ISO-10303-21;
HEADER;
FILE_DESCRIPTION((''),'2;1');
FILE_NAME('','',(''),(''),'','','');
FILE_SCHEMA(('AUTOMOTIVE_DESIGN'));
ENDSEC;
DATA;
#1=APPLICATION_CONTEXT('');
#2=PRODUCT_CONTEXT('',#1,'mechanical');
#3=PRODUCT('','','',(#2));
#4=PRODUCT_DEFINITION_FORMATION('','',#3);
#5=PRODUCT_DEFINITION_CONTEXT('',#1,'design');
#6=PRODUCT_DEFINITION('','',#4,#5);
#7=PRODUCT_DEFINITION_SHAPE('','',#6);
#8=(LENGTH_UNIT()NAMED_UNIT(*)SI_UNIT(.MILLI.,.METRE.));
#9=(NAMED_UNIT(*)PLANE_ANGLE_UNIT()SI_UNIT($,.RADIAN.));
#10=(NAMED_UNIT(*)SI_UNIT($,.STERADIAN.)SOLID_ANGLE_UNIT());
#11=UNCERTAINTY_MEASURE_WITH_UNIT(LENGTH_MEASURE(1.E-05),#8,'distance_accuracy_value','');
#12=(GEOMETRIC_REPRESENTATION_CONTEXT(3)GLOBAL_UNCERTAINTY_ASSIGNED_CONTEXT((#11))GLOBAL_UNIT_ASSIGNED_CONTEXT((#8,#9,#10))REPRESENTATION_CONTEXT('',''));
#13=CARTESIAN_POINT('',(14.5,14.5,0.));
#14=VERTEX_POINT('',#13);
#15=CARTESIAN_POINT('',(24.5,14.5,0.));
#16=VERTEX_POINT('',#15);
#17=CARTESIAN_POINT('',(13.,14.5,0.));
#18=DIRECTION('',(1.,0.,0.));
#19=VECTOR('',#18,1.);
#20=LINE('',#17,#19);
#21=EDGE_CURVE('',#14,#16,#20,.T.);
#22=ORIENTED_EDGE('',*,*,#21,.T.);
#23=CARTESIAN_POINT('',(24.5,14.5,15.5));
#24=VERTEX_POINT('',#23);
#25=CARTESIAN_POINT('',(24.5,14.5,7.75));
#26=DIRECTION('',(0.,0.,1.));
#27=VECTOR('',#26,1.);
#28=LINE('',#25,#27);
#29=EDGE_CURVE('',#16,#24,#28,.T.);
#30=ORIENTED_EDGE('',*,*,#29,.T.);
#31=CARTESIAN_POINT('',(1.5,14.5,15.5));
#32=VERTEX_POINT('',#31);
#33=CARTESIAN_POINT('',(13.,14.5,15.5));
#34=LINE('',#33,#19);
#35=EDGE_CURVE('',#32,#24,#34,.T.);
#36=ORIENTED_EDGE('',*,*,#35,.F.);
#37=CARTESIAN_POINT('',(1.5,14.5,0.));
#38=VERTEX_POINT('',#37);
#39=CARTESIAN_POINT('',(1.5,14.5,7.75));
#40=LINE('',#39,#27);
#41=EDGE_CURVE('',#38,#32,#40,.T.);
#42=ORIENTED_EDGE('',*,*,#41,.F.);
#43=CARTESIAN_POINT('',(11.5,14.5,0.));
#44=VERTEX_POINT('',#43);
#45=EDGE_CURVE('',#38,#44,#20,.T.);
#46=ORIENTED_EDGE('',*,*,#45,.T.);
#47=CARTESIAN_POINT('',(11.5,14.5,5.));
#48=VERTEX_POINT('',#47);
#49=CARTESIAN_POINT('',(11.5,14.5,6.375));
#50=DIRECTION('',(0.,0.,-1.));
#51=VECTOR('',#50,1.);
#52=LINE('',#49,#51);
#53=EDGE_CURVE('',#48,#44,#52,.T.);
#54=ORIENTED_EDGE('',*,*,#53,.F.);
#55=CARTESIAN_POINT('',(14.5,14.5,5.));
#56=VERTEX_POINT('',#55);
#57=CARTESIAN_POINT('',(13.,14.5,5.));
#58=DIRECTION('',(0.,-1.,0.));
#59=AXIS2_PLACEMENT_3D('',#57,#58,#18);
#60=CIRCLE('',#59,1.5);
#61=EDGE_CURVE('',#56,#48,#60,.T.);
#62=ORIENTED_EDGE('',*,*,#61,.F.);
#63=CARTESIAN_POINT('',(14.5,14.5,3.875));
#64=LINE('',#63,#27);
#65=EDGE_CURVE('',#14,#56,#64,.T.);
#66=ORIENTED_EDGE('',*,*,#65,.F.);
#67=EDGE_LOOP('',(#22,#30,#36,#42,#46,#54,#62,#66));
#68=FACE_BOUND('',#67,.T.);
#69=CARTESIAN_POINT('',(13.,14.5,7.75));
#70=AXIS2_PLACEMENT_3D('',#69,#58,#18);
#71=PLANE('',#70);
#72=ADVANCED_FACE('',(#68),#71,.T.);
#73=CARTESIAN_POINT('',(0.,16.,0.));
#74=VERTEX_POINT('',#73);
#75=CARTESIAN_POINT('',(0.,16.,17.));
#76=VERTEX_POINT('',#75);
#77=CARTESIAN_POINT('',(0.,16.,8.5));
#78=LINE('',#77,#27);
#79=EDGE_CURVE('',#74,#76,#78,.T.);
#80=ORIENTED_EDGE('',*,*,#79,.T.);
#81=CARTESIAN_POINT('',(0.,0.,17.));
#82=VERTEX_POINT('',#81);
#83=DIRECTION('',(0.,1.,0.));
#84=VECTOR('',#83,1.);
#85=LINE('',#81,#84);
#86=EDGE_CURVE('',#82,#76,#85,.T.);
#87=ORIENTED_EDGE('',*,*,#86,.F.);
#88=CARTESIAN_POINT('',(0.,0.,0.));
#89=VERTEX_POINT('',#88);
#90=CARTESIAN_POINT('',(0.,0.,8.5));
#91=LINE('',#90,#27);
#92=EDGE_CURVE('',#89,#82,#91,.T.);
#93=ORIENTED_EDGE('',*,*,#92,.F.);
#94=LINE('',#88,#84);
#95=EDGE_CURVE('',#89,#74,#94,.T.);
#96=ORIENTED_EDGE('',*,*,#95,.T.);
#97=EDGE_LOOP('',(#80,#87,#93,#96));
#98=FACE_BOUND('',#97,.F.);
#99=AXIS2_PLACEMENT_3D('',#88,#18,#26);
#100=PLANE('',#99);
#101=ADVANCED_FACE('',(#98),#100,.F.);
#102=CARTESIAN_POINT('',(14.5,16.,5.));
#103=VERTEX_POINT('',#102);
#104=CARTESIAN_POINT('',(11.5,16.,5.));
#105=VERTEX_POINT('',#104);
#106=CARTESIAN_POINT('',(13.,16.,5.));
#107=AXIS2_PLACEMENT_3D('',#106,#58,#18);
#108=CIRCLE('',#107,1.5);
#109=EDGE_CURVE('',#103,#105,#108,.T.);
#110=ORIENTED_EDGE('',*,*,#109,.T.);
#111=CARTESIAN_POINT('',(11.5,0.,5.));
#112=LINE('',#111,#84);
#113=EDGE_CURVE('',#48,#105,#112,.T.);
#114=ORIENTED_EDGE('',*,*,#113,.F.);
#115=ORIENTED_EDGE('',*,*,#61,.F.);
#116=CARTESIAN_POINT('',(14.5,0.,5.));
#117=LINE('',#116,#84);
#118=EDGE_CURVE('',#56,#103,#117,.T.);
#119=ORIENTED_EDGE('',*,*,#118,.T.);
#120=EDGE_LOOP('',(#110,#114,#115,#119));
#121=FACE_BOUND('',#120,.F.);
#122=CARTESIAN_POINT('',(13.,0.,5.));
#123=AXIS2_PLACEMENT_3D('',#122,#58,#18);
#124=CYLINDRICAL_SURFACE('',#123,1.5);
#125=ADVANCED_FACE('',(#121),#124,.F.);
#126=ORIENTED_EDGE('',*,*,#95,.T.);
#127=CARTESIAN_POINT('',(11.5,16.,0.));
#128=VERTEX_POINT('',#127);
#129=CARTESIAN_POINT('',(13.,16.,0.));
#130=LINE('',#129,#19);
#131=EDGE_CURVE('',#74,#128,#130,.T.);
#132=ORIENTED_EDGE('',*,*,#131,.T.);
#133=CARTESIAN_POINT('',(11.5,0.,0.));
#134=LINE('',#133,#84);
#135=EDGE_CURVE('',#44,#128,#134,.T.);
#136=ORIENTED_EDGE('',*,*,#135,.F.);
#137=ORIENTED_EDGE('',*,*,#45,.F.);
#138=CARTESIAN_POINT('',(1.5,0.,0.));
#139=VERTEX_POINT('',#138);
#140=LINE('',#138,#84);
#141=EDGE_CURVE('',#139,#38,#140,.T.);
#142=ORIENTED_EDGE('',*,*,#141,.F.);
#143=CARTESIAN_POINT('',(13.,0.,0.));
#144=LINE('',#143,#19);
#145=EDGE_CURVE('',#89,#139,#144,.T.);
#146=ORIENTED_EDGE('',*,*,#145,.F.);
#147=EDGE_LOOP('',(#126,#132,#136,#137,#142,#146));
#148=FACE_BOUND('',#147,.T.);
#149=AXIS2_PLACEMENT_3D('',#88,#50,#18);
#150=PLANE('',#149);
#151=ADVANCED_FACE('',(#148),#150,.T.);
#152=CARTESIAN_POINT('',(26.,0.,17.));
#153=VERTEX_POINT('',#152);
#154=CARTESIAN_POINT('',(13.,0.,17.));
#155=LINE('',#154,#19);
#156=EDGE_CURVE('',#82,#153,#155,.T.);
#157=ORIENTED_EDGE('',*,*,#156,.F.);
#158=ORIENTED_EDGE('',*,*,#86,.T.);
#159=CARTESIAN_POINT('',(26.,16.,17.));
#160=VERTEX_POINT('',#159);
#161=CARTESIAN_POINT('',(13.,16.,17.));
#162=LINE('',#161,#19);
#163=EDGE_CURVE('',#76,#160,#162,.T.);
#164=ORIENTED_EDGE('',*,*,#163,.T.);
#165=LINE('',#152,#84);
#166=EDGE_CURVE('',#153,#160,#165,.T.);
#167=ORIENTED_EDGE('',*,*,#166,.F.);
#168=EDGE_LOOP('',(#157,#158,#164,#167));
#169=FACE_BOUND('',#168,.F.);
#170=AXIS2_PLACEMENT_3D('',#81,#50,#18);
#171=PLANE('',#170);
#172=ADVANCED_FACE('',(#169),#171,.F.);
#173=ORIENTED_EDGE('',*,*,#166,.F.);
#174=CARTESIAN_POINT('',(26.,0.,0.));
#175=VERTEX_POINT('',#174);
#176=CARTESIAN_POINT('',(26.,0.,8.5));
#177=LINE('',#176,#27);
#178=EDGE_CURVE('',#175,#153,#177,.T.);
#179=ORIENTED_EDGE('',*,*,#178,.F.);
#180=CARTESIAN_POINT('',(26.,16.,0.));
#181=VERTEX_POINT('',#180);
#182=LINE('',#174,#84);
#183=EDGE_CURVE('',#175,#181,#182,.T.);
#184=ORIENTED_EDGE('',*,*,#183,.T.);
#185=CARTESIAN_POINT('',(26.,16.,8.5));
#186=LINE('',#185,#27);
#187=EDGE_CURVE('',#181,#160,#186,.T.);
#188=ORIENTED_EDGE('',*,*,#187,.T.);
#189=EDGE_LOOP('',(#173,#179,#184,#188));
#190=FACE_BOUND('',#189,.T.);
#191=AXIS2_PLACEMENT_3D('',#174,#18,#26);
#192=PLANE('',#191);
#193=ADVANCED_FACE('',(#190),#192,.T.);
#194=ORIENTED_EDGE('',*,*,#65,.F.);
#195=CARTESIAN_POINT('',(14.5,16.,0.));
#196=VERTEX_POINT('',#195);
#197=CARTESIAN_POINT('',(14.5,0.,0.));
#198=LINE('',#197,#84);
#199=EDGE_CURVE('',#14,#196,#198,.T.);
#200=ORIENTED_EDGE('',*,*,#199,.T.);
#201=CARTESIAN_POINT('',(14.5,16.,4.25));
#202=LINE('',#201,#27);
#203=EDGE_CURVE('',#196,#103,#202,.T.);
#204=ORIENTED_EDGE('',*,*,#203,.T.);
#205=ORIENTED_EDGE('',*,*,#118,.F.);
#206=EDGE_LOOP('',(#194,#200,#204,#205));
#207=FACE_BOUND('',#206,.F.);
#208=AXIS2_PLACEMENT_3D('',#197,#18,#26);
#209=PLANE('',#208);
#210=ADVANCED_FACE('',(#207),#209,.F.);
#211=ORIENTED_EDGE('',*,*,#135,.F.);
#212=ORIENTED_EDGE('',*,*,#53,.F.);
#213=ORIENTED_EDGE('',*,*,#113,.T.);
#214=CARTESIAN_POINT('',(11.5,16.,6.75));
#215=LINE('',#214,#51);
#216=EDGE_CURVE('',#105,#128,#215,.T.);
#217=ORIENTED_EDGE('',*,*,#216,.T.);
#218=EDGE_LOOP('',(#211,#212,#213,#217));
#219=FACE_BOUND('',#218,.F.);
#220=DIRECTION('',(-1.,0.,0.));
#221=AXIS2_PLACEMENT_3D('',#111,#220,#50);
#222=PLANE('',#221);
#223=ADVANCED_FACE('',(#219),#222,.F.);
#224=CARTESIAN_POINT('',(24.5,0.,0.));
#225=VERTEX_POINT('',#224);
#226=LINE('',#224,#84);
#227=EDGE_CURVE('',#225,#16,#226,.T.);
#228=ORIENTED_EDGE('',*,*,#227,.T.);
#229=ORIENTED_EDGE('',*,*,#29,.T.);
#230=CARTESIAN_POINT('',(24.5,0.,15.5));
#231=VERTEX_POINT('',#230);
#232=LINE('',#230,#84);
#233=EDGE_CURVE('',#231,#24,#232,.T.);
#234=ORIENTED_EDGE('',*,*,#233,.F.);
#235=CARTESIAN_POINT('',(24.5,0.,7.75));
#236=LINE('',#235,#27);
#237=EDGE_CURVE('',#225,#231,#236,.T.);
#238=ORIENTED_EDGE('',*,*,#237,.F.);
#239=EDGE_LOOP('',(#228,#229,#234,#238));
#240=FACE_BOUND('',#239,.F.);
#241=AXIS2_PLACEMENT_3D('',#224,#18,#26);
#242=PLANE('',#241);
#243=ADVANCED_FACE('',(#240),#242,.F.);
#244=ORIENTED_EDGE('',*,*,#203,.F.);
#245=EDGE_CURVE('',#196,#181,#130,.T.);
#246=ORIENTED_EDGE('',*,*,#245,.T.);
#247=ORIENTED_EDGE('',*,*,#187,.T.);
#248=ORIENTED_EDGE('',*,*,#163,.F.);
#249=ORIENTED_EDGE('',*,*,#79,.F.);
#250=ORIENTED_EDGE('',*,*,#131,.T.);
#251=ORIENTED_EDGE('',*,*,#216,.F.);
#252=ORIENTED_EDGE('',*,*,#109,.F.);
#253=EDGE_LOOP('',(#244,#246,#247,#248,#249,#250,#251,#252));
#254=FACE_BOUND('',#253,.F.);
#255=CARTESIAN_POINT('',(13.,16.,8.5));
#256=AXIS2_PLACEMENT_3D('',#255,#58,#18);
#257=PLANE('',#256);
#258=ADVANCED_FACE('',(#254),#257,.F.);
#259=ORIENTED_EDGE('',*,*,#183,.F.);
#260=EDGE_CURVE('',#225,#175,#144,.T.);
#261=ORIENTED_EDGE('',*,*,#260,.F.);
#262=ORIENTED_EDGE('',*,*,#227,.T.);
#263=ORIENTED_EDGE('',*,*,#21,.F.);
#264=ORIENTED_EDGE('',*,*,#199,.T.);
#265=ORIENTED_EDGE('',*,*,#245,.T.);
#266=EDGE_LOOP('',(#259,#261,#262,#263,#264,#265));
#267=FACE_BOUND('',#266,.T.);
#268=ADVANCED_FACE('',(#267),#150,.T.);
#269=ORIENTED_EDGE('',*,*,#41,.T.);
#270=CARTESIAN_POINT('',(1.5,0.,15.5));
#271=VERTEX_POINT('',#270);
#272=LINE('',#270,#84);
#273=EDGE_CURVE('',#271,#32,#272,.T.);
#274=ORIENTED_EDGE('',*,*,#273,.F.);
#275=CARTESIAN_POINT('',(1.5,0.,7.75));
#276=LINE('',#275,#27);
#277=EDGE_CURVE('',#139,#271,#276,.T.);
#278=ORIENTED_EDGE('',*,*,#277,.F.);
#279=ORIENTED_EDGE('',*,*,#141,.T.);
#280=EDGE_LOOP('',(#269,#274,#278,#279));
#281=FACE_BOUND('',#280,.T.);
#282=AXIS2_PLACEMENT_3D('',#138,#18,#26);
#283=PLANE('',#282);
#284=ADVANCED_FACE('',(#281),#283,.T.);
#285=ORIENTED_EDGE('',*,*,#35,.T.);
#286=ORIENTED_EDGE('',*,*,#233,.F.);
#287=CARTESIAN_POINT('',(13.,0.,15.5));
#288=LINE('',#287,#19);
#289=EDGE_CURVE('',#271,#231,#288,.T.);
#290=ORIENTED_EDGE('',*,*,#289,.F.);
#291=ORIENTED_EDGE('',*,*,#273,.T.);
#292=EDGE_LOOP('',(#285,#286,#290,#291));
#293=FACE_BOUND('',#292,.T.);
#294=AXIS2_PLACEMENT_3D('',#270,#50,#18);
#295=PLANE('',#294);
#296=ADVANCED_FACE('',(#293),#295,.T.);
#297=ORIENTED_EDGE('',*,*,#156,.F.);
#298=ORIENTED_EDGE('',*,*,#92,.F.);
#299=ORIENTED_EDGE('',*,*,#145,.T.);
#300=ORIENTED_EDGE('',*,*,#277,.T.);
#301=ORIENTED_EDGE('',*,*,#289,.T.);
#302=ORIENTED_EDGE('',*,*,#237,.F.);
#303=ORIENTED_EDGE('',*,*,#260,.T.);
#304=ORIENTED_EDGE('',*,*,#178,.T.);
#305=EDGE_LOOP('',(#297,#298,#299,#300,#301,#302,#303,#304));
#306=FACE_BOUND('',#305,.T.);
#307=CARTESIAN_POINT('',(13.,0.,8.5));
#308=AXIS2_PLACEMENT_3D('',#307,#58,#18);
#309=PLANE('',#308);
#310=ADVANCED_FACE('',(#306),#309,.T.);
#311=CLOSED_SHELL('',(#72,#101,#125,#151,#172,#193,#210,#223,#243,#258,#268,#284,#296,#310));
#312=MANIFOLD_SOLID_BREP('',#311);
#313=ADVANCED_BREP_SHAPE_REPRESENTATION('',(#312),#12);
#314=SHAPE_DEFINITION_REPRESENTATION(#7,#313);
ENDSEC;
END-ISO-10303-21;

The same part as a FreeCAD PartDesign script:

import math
import FreeCAD as App
import Part
import Sketcher


def add_polygon(sketch, points):
    """Adds a closed chain of lines whose ends are joined by coincident constraints."""
    first, n = sketch.GeometryCount, len(points)
    for a, b in zip(points, points[1:] + points[:1]):
        sketch.addGeometry(Part.LineSegment(App.Vector(*a, 0), App.Vector(*b, 0)), False)
    for i in range(n):
        sketch.addConstraint(Sketcher.Constraint("Coincident", first + i, 2, first + (i + 1) % n, 1))

doc = App.newDocument("Part")
params = doc.addObject("Spreadsheet::Sheet", "Params")
for row, (alias, value) in enumerate([
    ("sketch1_width", "26 mm"),
    ("sketch1_height", "17 mm"),
    ("pad1_length", "16 mm"),
    ("sketch2_width", "23 mm"),
    ("sketch2_height", "15.5 mm"),
    ("pocket1_length", "14.5 mm"),
    ("sketch3_radius", "1.5 mm"),
    ("sketch3_height", "5 mm"),
    ("pocket2_length", "25 mm"),
], start=1):
    params.set(f"A{row}", alias)
    params.set(f"B{row}", "=" + value)
    params.setAlias(f"B{row}", alias)

body = doc.addObject("PartDesign::Body", "Body")

# Sketch on XZ plane
sketch1 = body.newObject("Sketcher::SketchObject", "Sketch")
sketch1.AttachmentSupport = (doc.getObject("XZ_Plane"), [""])
sketch1.MapMode = "FlatFace"
add_polygon(sketch1, [(0, 17), (0, 0), (26, 0), (26, 17)])  # lines 0-3
sketch1.addConstraint(Sketcher.Constraint("Vertical", 0))
sketch1.addConstraint(Sketcher.Constraint("Horizontal", 1))
sketch1.addConstraint(Sketcher.Constraint("Vertical", 2))
sketch1.addConstraint(Sketcher.Constraint("Horizontal", 3))
sketch1.addConstraint(Sketcher.Constraint("Coincident", 0, 2, -1, 1))
sketch1.addConstraint(Sketcher.Constraint("DistanceX", 1, 1, 1, 2, 26.0))
sketch1.addConstraint(Sketcher.Constraint("DistanceY", 0, 2, 0, 1, 17.0))
sketch1.setExpression("Constraints[9]", "Params.sketch1_width")
sketch1.setExpression("Constraints[10]", "Params.sketch1_height")
pad1 = body.newObject("PartDesign::Pad", "Pad")
pad1.Profile = sketch1
pad1.setExpression("Length", "Params.pad1_length")
pad1.Reversed = True

# Sketch on XZ plane
sketch2 = body.newObject("Sketcher::SketchObject", "Sketch001")
sketch2.AttachmentSupport = (doc.getObject("XZ_Plane"), [""])
sketch2.MapMode = "FlatFace"
add_polygon(sketch2, [(2, 16), (2, 0), (24, 0), (24, 16)])  # lines 0-3
sketch2.addConstraint(Sketcher.Constraint("Vertical", 0))
sketch2.addConstraint(Sketcher.Constraint("Horizontal", 1))
sketch2.addConstraint(Sketcher.Constraint("Vertical", 2))
sketch2.addConstraint(Sketcher.Constraint("Horizontal", 3))
sketch2.addConstraint(Sketcher.Constraint("PointOnObject", 0, 2, -1))
sketch2.addConstraint(Sketcher.Constraint("DistanceX", 1, 1, 1, 2, 23.0))
sketch2.addConstraint(Sketcher.Constraint("DistanceY", 0, 2, 0, 1, 15.5))
sketch2.addConstraint(Sketcher.Constraint("DistanceX", -1, 1, 0, 2, 1.5))
sketch2.setExpression("Constraints[9]", "Params.sketch2_width")
sketch2.setExpression("Constraints[10]", "Params.sketch2_height")
pocket1 = body.newObject("PartDesign::Pocket", "Pocket")
pocket1.Profile = sketch2
pocket1.setExpression("Length", "Params.pocket1_length")

# Sketch on XZ plane
sketch3 = body.newObject("Sketcher::SketchObject", "Sketch002")
sketch3.AttachmentSupport = (doc.getObject("XZ_Plane"), [""])
sketch3.MapMode = "FlatFace"
sketch3.addGeometry(Part.LineSegment(App.Vector(14.5, 0, 0), App.Vector(14.5, 5, 0)), False)
sketch3.addGeometry(Part.ArcOfCircle(Part.Circle(App.Vector(13, 5, 0), App.Vector(0, 0, 1), 1.5), math.radians(0), math.radians(180)), False)
sketch3.addGeometry(Part.LineSegment(App.Vector(11.5, 5, 0), App.Vector(11.5, 0, 0)), False)
sketch3.addGeometry(Part.LineSegment(App.Vector(11.5, 0, 0), App.Vector(14.5, 0, 0)), False)
sketch3.addConstraint(Sketcher.Constraint("Tangent", 0, 2, 1, 1))
sketch3.addConstraint(Sketcher.Constraint("Tangent", 1, 2, 2, 1))
sketch3.addConstraint(Sketcher.Constraint("Coincident", 2, 2, 3, 1))
sketch3.addConstraint(Sketcher.Constraint("Coincident", 3, 2, 0, 1))
sketch3.addConstraint(Sketcher.Constraint("Vertical", 0))
sketch3.addConstraint(Sketcher.Constraint("Vertical", 2))
sketch3.addConstraint(Sketcher.Constraint("Horizontal", 3))
sketch3.addConstraint(Sketcher.Constraint("PointOnObject", 2, 2, -1))
sketch3.addConstraint(Sketcher.Constraint("Radius", 1, 1.5))
sketch3.addConstraint(Sketcher.Constraint("DistanceY", 0, 1, 0, 2, 5.0))
sketch3.addConstraint(Sketcher.Constraint("DistanceX", -1, 1, 1, 3, 13.0))
sketch3.setExpression("Constraints[8]", "Params.sketch3_radius")
sketch3.setExpression("Constraints[9]", "Params.sketch3_height")
pocket2 = body.newObject("PartDesign::Pocket", "Pocket001")
pocket2.Profile = sketch3
pocket2.setExpression("Length", "Params.pocket2_length")

doc.recompute()
